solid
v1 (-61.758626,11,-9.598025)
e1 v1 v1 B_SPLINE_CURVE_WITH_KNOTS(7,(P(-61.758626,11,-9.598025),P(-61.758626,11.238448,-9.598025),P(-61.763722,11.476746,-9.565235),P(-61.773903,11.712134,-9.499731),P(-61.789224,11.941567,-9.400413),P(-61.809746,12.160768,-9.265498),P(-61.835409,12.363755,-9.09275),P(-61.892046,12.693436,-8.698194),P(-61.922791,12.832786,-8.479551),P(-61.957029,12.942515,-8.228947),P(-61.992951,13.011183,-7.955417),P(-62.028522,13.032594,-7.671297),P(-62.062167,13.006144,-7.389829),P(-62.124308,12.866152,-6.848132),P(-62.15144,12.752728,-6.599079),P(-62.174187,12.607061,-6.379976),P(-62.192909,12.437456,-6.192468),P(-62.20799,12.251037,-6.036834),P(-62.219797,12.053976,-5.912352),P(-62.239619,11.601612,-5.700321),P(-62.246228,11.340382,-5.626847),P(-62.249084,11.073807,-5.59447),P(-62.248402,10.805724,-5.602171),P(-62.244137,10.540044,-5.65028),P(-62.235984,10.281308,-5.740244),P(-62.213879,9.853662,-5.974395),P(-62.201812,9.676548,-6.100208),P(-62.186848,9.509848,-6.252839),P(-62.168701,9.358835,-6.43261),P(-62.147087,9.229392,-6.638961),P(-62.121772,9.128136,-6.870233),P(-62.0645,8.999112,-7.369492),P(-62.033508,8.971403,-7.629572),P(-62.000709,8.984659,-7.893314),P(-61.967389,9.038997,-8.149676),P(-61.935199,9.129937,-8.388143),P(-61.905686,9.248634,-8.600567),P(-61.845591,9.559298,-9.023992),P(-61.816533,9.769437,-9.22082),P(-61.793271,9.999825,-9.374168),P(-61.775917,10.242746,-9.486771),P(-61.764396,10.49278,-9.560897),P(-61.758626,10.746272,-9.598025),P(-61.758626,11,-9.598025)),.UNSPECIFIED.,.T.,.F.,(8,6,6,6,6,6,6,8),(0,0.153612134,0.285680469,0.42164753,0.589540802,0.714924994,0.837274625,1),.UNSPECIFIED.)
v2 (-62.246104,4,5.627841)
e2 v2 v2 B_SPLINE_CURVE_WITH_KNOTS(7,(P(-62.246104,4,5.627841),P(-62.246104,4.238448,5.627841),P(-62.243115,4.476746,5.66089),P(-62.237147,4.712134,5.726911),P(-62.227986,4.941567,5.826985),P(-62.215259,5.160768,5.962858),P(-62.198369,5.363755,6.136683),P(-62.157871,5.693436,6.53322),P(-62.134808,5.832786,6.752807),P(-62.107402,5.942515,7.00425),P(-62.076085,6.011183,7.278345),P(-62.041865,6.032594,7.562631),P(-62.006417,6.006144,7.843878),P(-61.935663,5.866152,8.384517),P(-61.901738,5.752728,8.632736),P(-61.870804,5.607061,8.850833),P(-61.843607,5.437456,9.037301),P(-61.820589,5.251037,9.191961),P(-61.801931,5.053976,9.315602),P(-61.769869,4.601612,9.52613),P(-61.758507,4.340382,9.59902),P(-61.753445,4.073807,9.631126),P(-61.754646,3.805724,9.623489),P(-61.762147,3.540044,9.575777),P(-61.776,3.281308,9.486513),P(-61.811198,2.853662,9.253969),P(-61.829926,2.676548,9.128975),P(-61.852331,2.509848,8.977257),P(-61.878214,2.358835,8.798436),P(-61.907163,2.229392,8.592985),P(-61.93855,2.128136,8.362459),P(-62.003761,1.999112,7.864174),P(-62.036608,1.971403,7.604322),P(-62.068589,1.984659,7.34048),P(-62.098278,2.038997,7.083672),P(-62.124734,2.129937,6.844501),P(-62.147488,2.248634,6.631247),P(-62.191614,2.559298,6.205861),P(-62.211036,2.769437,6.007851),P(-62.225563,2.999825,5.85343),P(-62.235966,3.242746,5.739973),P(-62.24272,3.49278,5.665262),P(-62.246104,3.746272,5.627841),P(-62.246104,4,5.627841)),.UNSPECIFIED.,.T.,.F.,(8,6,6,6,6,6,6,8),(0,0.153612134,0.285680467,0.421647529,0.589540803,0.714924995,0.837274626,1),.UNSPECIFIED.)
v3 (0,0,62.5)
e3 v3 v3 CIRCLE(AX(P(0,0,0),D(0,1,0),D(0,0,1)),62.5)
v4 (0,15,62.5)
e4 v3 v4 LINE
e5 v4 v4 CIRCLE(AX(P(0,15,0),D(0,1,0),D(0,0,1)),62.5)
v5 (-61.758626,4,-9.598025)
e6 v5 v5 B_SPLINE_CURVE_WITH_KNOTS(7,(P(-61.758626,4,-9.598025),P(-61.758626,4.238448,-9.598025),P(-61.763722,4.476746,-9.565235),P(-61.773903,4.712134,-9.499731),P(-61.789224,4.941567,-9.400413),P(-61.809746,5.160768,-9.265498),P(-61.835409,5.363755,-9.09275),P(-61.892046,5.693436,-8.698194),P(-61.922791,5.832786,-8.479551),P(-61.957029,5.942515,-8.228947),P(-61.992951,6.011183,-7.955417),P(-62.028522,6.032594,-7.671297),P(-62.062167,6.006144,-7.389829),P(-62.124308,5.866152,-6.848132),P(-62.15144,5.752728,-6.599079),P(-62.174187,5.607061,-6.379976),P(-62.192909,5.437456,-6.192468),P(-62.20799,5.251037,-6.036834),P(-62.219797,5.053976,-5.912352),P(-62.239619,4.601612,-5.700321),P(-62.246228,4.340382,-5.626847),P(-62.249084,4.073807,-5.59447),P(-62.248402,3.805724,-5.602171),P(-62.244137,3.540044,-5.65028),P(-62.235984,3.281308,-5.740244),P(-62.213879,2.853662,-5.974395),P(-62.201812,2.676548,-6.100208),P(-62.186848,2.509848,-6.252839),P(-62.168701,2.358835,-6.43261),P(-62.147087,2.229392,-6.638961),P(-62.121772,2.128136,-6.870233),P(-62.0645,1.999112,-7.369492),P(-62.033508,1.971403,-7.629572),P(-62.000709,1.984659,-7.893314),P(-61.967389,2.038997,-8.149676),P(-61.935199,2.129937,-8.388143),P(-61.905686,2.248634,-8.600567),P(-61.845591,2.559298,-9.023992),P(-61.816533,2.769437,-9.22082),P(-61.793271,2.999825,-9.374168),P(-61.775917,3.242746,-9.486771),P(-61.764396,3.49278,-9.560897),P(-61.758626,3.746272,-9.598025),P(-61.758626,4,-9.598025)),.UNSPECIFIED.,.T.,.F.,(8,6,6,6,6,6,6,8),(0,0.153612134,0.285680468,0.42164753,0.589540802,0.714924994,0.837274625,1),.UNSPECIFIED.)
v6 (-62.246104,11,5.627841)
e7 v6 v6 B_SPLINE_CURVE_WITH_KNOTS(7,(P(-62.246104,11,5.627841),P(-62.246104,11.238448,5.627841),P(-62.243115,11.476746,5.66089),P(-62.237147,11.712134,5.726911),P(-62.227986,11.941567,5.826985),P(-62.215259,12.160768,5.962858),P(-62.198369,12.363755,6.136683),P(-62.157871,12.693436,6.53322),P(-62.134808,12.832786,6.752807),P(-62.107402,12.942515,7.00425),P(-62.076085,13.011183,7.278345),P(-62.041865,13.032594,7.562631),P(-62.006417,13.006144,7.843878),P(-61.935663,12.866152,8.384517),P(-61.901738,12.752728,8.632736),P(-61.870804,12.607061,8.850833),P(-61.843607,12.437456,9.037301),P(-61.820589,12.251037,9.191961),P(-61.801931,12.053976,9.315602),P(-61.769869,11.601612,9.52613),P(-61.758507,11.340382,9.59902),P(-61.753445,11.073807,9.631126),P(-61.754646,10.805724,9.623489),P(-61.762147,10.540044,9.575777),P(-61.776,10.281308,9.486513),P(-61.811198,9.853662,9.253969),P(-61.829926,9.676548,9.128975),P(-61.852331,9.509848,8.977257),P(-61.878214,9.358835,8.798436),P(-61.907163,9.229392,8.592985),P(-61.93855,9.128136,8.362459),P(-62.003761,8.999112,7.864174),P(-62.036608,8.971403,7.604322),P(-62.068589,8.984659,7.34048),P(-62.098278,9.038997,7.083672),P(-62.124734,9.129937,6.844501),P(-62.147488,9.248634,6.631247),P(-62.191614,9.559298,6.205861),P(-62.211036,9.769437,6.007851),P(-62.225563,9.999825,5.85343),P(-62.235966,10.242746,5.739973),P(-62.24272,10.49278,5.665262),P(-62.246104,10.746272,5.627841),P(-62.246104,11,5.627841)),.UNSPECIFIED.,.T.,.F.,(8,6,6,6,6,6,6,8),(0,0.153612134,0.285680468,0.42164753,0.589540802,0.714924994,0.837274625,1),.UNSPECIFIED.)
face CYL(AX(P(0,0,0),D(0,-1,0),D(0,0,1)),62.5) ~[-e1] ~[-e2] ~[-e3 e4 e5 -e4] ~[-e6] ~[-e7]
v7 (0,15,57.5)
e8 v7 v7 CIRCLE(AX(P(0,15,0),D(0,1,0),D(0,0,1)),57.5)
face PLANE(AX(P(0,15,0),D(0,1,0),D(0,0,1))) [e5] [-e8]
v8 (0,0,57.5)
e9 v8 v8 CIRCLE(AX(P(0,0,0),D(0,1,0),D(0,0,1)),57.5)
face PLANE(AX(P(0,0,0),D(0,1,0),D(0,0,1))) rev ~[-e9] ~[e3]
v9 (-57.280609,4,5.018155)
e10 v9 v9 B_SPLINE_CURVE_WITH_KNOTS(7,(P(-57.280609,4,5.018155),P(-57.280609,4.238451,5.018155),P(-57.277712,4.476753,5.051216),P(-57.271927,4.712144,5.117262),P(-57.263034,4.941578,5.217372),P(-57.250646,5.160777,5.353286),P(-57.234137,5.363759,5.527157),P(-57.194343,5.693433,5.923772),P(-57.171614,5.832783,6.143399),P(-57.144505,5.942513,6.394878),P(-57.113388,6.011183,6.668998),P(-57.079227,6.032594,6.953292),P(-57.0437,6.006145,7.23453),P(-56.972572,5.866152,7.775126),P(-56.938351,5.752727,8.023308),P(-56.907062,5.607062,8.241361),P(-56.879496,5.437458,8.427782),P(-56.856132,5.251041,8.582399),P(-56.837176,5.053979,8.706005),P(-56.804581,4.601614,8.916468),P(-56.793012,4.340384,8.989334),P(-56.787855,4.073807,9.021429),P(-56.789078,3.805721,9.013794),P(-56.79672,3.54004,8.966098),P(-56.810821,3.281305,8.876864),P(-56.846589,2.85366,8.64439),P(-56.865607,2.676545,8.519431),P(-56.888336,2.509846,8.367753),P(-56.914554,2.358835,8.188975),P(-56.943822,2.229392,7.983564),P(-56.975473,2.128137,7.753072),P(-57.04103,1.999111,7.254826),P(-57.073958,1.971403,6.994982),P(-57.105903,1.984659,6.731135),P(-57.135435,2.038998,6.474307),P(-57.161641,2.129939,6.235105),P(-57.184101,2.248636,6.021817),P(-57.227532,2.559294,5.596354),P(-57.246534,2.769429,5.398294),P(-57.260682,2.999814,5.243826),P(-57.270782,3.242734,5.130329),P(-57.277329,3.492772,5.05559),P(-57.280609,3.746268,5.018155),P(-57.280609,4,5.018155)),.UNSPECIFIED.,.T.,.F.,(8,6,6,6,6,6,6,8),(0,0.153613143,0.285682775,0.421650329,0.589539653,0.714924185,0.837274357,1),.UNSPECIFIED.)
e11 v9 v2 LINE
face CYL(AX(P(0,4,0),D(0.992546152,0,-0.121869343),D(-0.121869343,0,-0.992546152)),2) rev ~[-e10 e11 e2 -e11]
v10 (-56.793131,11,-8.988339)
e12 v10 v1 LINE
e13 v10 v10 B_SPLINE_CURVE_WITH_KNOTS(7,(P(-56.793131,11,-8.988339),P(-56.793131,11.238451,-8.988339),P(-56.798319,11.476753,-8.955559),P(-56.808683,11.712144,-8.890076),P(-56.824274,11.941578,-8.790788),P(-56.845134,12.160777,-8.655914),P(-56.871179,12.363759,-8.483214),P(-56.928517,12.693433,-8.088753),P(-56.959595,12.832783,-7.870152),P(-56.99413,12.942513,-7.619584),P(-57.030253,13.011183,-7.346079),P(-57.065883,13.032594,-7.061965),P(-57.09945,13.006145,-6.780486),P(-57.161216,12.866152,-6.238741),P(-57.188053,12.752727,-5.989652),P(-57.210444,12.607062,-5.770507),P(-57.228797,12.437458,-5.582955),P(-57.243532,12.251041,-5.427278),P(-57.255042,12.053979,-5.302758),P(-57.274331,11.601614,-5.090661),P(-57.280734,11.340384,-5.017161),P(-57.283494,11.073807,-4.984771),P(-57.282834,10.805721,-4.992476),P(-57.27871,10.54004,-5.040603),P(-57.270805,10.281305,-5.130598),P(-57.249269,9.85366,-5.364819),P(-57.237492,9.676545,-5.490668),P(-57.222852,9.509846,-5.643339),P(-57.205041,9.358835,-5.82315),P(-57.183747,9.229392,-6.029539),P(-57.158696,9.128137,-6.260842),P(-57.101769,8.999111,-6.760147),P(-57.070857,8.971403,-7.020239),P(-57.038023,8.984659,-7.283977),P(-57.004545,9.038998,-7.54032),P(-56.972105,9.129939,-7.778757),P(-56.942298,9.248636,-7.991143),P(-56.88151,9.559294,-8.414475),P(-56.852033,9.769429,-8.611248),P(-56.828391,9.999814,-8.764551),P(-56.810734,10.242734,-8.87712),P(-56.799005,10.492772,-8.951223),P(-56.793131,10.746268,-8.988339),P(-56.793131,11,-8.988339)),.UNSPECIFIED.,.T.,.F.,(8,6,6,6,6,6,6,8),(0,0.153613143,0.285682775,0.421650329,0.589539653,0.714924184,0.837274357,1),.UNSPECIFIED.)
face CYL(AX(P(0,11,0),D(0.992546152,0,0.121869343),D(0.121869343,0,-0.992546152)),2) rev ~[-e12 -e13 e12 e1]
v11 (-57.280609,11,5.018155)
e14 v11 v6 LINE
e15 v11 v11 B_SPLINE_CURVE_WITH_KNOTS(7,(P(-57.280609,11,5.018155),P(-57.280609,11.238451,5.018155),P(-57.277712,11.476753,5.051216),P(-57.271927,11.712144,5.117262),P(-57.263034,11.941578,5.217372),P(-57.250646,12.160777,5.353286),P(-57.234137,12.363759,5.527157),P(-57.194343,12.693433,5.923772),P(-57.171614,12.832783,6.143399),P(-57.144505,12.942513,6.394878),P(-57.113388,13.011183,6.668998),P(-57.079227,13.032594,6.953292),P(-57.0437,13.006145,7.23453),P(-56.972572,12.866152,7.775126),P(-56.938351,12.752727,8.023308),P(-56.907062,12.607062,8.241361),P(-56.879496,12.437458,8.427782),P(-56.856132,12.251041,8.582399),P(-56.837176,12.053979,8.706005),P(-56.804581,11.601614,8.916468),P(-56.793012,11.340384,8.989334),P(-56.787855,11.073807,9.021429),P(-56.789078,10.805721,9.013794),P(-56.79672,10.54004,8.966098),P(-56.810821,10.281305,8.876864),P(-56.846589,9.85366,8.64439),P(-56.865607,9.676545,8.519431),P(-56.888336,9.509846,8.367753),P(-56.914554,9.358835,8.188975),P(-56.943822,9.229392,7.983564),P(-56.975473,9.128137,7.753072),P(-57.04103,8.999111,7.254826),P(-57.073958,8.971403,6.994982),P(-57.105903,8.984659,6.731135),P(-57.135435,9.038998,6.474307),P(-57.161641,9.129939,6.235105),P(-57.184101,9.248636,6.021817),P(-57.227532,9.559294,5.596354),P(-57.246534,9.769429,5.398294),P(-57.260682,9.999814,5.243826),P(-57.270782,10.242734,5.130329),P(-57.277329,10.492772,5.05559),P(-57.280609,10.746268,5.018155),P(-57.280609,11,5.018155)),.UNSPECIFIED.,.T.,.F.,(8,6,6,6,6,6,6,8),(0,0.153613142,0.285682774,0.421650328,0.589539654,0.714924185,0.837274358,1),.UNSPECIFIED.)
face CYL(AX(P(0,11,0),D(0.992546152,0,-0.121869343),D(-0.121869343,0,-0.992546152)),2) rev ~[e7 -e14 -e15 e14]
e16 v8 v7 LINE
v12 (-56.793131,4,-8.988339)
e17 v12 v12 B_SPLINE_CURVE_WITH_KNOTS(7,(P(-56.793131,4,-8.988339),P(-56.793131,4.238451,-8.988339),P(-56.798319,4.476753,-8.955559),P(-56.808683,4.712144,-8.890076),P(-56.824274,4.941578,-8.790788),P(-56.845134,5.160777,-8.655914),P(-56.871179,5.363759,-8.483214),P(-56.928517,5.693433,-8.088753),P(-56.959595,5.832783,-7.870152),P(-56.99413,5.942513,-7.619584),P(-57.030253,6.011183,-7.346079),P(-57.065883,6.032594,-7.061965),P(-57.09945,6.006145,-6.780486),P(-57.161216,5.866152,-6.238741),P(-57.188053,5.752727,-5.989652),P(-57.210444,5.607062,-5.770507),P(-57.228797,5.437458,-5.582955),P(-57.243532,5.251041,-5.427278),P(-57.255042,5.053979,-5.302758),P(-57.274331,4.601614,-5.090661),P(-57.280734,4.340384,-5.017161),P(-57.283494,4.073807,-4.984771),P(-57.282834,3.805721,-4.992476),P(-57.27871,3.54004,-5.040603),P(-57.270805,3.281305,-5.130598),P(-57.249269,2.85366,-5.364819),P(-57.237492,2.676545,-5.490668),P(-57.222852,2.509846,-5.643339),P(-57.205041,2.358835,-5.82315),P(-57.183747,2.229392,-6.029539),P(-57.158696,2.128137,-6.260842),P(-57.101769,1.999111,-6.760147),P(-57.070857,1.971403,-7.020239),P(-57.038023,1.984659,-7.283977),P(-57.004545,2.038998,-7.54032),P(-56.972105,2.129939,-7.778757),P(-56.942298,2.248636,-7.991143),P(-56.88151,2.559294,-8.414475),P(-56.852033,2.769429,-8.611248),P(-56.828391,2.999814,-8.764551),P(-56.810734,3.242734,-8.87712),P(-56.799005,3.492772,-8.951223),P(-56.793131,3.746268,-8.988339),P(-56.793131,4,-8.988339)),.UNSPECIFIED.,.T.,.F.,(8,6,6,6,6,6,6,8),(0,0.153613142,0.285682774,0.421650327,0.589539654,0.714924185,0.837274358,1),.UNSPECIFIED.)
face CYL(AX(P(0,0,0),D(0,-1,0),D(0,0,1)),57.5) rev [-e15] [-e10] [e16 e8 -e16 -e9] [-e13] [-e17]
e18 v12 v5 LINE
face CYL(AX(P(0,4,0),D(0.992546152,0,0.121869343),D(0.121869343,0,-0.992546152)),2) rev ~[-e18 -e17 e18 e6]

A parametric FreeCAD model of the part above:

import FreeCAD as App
import Part
import Sketcher
from FreeCAD import Vector
Q = App.Units.Quantity

doc = App.newDocument("Part")
body = doc.addObject("PartDesign::Body", "Body")

# Sketch on XZ plane
sketch1 = body.newObject("Sketcher::SketchObject", "Sketch")
sketch1.AttachmentSupport = (doc.getObject("XZ_Plane"), [""])
sketch1.MapMode = "FlatFace"
sketch1.addGeometry(Part.Circle(Vector(0, 0, 0), Vector(0, 0, 1), 62.5), False)
sketch1.addGeometry(Part.Circle(Vector(0, 0, 0), Vector(0, 0, 1), 57.5), False)
sketch1.addConstraint(Sketcher.Constraint("Coincident", 0, 3, -1, 1))
sketch1.addConstraint(Sketcher.Constraint("Coincident", 1, 3, -1, 1))
sketch1.addConstraint(Sketcher.Constraint("Diameter", 0, Q("125 mm")))
sketch1.addConstraint(Sketcher.Constraint("Diameter", 1, Q("115 mm")))
pad1 = body.newObject("PartDesign::Pad", "Pad")
pad1.Profile = sketch1
pad1.Length = 15
pad1.Reversed = True

# Sketch on an angled plane
sketch2 = body.newObject("Sketcher::SketchObject", "Sketch001")
sketch2.Placement = App.Placement(Vector(0, 0, 0), App.Rotation(Vector(-0.121869343, 0, -0.992546152), Vector(0, 1.000000001, 0), Vector(0.992546152, 0, -0.121869343), "ZXY"))
sketch2.addGeometry(Part.Circle(Vector(0, 11, 0), Vector(0, 0, 1), 2), False)
sketch2.addGeometry(Part.Circle(Vector(0, 4, 0), Vector(0, 0, 1), 2), False)
sketch2.addConstraint(Sketcher.Constraint("Equal", 0, 1))
sketch2.addConstraint(Sketcher.Constraint("PointOnObject", 0, 3, -2))
sketch2.addConstraint(Sketcher.Constraint("PointOnObject", 1, 3, -2))
sketch2.addConstraint(Sketcher.Constraint("Diameter", 0, Q("4 mm")))
sketch2.addConstraint(Sketcher.Constraint("DistanceY", -1, 1, 0, 3, Q("11 mm")))
sketch2.addConstraint(Sketcher.Constraint("DistanceY", -1, 1, 1, 3, Q("4 mm")))
pocket1 = body.newObject("PartDesign::Pocket", "Pocket")
pocket1.Profile = sketch2
pocket1.Length = 71

# Sketch on an angled plane
sketch3 = body.newObject("Sketcher::SketchObject", "Sketch002")
sketch3.Placement = App.Placement(Vector(0, 0, 0), App.Rotation(Vector(0.121869343, 0, -0.992546152), Vector(0, 1.000000001, 0), Vector(0.992546152, 0, 0.121869343), "ZXY"))
sketch3.addGeometry(Part.Circle(Vector(0, 11, 0), Vector(0, 0, 1), 2), False)
sketch3.addGeometry(Part.Circle(Vector(0, 4, 0), Vector(0, 0, 1), 2), False)
sketch3.addConstraint(Sketcher.Constraint("Equal", 0, 1))
sketch3.addConstraint(Sketcher.Constraint("PointOnObject", 0, 3, -2))
sketch3.addConstraint(Sketcher.Constraint("PointOnObject", 1, 3, -2))
sketch3.addConstraint(Sketcher.Constraint("Diameter", 0, Q("4 mm")))
sketch3.addConstraint(Sketcher.Constraint("DistanceY", -1, 1, 0, 3, Q("11 mm")))
sketch3.addConstraint(Sketcher.Constraint("DistanceY", -1, 1, 1, 3, Q("4 mm")))
pocket2 = body.newObject("PartDesign::Pocket", "Pocket001")
pocket2.Profile = sketch3
pocket2.Length = 71

doc.recompute()
